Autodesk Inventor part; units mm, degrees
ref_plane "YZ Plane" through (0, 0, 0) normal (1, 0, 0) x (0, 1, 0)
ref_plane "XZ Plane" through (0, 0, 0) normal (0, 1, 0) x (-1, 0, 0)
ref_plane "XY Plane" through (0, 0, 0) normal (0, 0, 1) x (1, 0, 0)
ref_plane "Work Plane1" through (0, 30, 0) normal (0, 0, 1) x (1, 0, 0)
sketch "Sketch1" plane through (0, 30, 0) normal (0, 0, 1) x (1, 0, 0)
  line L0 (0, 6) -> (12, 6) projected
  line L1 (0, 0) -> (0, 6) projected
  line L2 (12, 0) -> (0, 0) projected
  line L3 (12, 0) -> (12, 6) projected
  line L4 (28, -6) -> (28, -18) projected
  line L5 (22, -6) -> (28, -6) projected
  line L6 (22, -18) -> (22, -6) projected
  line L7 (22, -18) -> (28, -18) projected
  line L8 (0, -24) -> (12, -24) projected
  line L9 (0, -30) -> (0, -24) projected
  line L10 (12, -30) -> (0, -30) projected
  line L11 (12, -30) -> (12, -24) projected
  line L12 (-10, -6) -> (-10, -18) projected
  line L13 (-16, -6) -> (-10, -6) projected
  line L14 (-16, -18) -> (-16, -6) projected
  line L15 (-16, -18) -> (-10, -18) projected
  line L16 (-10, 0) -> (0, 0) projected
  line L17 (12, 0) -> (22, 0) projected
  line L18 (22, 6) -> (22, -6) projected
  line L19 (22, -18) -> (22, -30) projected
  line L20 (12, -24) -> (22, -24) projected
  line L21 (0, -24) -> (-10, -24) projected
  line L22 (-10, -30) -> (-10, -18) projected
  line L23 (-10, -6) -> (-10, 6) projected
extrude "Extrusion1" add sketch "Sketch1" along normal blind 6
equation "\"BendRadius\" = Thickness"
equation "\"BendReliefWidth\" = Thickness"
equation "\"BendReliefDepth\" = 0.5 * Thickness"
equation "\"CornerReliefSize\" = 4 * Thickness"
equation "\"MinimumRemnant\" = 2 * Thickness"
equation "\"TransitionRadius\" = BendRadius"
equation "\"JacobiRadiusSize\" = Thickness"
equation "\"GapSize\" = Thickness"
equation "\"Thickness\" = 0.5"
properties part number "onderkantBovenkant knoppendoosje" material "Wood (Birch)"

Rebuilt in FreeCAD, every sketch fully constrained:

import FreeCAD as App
import Part
import Sketcher

V = App.Vector


def add_polygon(sketch, points):
    """Adds a closed chain of lines whose ends are joined by coincident constraints."""
    first, n = sketch.GeometryCount, len(points)
    for a, b in zip(points, points[1:] + points[:1]):
        sketch.addGeometry(Part.LineSegment(App.Vector(*a, 0), App.Vector(*b, 0)), False)
    for i in range(n):
        sketch.addConstraint(Sketcher.Constraint("Coincident", first + i, 2, first + (i + 1) % n, 1))

doc = App.newDocument("Part")
body = doc.addObject("PartDesign::Body", "Body")

sketch1 = body.newObject("Sketcher::SketchObject", "Sketch")
sketch1.AttachmentSupport = (doc.getObject("XY_Plane"), [""])
sketch1.MapMode = "FlatFace"
add_polygon(sketch1, [(12, 36), (0, 36), (0, 30), (-10, 30), (-10, 24), (-16, 24), (-16, 12), (-10, 12), (-10, 6), (0, 6), (0, 0), (12, 0), (12, 6), (22, 6), (22, 12), (28, 12), (28, 24), (22, 24), (22, 30), (12, 30)])
sketch1.addConstraint(Sketcher.Constraint("Horizontal", 0))
sketch1.addConstraint(Sketcher.Constraint("Vertical", 1))
sketch1.addConstraint(Sketcher.Constraint("Horizontal", 2))
sketch1.addConstraint(Sketcher.Constraint("Vertical", 3))
sketch1.addConstraint(Sketcher.Constraint("Horizontal", 4))
sketch1.addConstraint(Sketcher.Constraint("Vertical", 5))
sketch1.addConstraint(Sketcher.Constraint("Horizontal", 6))
sketch1.addConstraint(Sketcher.Constraint("Vertical", 7))
sketch1.addConstraint(Sketcher.Constraint("Horizontal", 8))
sketch1.addConstraint(Sketcher.Constraint("Vertical", 9))
sketch1.addConstraint(Sketcher.Constraint("Horizontal", 10))
sketch1.addConstraint(Sketcher.Constraint("Vertical", 11))
sketch1.addConstraint(Sketcher.Constraint("Horizontal", 12))
sketch1.addConstraint(Sketcher.Constraint("Vertical", 13))
sketch1.addConstraint(Sketcher.Constraint("Horizontal", 14))
sketch1.addConstraint(Sketcher.Constraint("Vertical", 15))
sketch1.addConstraint(Sketcher.Constraint("Horizontal", 16))
sketch1.addConstraint(Sketcher.Constraint("Vertical", 17))
sketch1.addConstraint(Sketcher.Constraint("Horizontal", 18))
sketch1.addConstraint(Sketcher.Constraint("Vertical", 19))
sketch1.addConstraint(Sketcher.Constraint("Coincident", 9, 2, -1, 1))
sketch1.addConstraint(Sketcher.Constraint("PointOnObject", 0, 2, -2))
sketch1.addConstraint(Sketcher.Constraint("Horizontal", 8, 2, 11, 2))
sketch1.addConstraint(Sketcher.Constraint("Horizontal", 6, 2, 13, 2))
sketch1.addConstraint(Sketcher.Constraint("Horizontal", 4, 2, 15, 2))
sketch1.addConstraint(Sketcher.Constraint("Horizontal", 2, 2, 17, 2))
sketch1.addConstraint(Sketcher.Constraint("Vertical", 3, 2, 6, 2))
sketch1.addConstraint(Sketcher.Constraint("Vertical", 13, 2, 16, 2))
sketch1.addConstraint(Sketcher.Constraint("Vertical", 11, 2, 18, 2))
sketch1.addConstraint(Sketcher.Constraint("Equal", 8, 12))
sketch1.addConstraint(Sketcher.Constraint("Equal", 6, 14))
sketch1.addConstraint(Sketcher.Constraint("Equal", 16, 1))
sketch1.addConstraint(Sketcher.Constraint("Equal", 1, 3))
sketch1.addConstraint(Sketcher.Constraint("Equal", 10, 5))
sketch1.addConstraint(Sketcher.Constraint("Equal", 3, 7))
sketch1.addConstraint(Sketcher.Constraint("Equal", 7, 9))
sketch1.addConstraint(Sketcher.Constraint("DistanceX", 0, 2, 0, 1, 12.0))
sketch1.addConstraint(Sketcher.Constraint("DistanceX", 2, 2, 2, 1, 10.0))
sketch1.addConstraint(Sketcher.Constraint("DistanceX", 4, 2, 4, 1, 6.0))
pad1 = body.newObject("PartDesign::Pad", "Pad")
pad1.Profile = sketch1
pad1.Length = 6

doc.recompute()
